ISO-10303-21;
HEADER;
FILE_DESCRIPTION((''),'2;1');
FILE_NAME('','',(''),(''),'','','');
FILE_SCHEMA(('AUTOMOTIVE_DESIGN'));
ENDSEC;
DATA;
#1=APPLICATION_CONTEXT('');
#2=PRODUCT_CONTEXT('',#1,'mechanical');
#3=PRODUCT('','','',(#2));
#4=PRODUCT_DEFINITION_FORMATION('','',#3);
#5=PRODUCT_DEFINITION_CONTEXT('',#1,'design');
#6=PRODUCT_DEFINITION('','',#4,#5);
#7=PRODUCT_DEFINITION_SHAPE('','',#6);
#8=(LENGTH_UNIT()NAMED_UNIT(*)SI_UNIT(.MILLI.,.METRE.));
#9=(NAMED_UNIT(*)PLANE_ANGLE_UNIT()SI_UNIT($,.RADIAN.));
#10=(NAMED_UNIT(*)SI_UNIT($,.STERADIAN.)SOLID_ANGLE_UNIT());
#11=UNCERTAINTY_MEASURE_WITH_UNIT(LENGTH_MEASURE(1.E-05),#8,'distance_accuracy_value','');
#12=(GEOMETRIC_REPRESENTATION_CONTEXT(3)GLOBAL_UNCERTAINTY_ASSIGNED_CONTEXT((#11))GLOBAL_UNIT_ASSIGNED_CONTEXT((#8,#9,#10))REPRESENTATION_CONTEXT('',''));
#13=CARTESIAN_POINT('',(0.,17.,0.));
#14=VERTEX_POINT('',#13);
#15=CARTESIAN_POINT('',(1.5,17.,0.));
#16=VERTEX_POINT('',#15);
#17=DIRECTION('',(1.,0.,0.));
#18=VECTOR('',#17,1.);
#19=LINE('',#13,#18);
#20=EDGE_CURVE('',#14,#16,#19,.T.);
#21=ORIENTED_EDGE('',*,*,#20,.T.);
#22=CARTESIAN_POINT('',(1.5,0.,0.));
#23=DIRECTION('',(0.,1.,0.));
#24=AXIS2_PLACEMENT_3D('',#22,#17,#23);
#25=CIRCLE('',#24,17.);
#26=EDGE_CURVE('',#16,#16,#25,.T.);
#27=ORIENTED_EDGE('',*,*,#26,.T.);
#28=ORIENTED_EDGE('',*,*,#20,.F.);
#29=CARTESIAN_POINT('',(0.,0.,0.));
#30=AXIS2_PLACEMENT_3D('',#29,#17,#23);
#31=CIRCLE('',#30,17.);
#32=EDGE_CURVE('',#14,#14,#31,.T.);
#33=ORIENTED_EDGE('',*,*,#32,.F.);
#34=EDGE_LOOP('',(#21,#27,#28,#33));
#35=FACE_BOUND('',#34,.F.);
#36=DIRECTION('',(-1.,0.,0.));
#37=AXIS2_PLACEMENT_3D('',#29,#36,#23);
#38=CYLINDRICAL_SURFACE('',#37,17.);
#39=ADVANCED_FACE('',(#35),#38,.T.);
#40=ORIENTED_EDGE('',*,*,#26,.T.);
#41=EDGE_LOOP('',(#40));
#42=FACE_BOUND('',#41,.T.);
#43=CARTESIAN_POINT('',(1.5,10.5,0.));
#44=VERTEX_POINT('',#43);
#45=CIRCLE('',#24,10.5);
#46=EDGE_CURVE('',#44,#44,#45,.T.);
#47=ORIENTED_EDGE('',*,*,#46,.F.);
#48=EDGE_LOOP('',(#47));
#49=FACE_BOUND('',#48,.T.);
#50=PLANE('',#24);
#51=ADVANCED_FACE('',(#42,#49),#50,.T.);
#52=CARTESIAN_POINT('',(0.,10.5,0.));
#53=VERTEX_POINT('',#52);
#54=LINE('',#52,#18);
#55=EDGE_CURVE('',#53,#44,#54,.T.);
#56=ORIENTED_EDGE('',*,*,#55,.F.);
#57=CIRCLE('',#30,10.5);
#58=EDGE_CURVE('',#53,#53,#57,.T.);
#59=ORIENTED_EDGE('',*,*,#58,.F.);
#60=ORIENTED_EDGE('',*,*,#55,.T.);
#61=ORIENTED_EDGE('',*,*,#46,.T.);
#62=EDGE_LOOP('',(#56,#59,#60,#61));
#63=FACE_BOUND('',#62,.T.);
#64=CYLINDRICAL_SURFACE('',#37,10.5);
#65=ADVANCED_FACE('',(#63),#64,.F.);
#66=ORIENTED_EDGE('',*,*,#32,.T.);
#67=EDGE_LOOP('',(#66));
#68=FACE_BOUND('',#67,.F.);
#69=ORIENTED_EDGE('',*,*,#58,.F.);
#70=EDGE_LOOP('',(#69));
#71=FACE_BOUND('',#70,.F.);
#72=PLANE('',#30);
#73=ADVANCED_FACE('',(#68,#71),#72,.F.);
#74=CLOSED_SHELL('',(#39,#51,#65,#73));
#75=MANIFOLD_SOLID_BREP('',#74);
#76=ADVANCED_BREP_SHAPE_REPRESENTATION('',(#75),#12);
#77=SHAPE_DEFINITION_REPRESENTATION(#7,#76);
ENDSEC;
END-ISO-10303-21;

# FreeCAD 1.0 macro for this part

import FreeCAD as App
import Part
import Sketcher
from FreeCAD import Vector

doc = App.newDocument("Part")
body = doc.addObject("PartDesign::Body", "Body")

# Sketch on YZ plane
sketch1 = doc.addObject("Sketcher::SketchObject", "Sketch")
body.addObject(sketch1)
sketch1.AttachmentSupport = (doc.YZ_Plane, [""])
sketch1.MapMode = "FlatFace"
sketch1.addGeometry(Part.Circle(Vector(0, 0, 0), Vector(0, 0, 1), 17), False)
sketch1.addGeometry(Part.Circle(Vector(0, 0, 0), Vector(0, 0, 1), 10), False)
sketch1.addConstraint(Sketcher.Constraint("Coincident", 0, 3, -1, 1))
sketch1.addConstraint(Sketcher.Constraint("Coincident", 1, 3, -1, 1))
sketch1.addConstraint(Sketcher.Constraint("Diameter", 0, 34.0))
sketch1.addConstraint(Sketcher.Constraint("Diameter", 1, 21.0))
pad1 = doc.addObject("PartDesign::Pad", "Pad")
body.addObject(pad1)
pad1.Profile = sketch1
pad1.Length = 1.5

doc.recompute()
